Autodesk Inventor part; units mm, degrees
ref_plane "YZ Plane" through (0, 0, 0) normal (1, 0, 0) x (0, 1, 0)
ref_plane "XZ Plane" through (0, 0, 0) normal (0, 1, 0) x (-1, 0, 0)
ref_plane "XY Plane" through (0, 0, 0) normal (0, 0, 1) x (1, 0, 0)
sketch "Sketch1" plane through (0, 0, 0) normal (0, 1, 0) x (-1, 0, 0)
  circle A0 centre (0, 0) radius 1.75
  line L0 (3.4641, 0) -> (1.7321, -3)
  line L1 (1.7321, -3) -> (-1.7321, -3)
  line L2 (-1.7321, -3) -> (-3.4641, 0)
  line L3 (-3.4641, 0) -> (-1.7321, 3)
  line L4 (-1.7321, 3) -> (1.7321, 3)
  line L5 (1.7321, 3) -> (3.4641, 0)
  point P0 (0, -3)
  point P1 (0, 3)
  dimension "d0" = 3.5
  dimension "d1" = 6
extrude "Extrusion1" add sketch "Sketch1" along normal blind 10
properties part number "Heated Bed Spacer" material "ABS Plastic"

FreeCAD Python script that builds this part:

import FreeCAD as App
import Part
import Sketcher

V = App.Vector
Q = App.Units.Quantity

doc = App.newDocument("Part")
body = doc.addObject("PartDesign::Body", "Body")

sketch1 = body.newObject("Sketcher::SketchObject", "Sketch")
sketch1.AttachmentSupport = (doc.getObject("XZ_Plane"), [""])
sketch1.MapMode = "FlatFace"
sketch1.addGeometry([
    Part.LineSegment(V(-1.7321, -3, 0), V(-3.4641, 0, 0)),
    Part.LineSegment(V(-3.4641, 0, 0), V(-1.7321, 3, 0)),
    Part.LineSegment(V(-1.7321, 3, 0), V(1.7321, 3, 0)),
    Part.LineSegment(V(1.7321, 3, 0), V(3.4641, 0, 0)),
    Part.LineSegment(V(3.4641, 0, 0), V(1.7321, -3, 0)),
    Part.LineSegment(V(1.7321, -3, 0), V(-1.7321, -3, 0)),
    Part.Circle(V(0, 0, 0), V(0, 0, 1), 1.75),
], False)
sketch1.addConstraint([
    Sketcher.Constraint("Coincident", 0, 2, 1, 1),
    Sketcher.Constraint("Coincident", 1, 2, 2, 1),
    Sketcher.Constraint("Coincident", 2, 2, 3, 1),
    Sketcher.Constraint("Coincident", 3, 2, 4, 1),
    Sketcher.Constraint("Coincident", 4, 2, 5, 1),
    Sketcher.Constraint("Coincident", 5, 2, 0, 1),
    Sketcher.Constraint("Horizontal", 2),
    Sketcher.Constraint("Horizontal", 5),
    Sketcher.Constraint("Coincident", 6, 3, -1, 1),
    Sketcher.Constraint("Symmetric", 0, 2, 3, 2, -1, 1),
    Sketcher.Constraint("Symmetric", 1, 2, 4, 2, -1, 1),
    Sketcher.Constraint("PointOnObject", 0, 2, -1),
    Sketcher.Constraint("Parallel", 0, 3),
    Sketcher.Constraint("Vertical", 2, 2, 4, 2),
    Sketcher.Constraint("Diameter", 6, Q("3.5 mm")),
    Sketcher.Constraint("DistanceY", 4, 2, 2, 2, Q("6 mm")),
    Sketcher.Constraint("Angle", 0, Q("119.9993 deg")),
    Sketcher.Constraint("DistanceX", 2, 1, 2, 2, Q("3.4642 mm")),
])
pad1 = body.newObject("PartDesign::Pad", "Pad")
pad1.Profile = sketch1
pad1.Length = 10
pad1.Reversed = True

doc.recompute()
